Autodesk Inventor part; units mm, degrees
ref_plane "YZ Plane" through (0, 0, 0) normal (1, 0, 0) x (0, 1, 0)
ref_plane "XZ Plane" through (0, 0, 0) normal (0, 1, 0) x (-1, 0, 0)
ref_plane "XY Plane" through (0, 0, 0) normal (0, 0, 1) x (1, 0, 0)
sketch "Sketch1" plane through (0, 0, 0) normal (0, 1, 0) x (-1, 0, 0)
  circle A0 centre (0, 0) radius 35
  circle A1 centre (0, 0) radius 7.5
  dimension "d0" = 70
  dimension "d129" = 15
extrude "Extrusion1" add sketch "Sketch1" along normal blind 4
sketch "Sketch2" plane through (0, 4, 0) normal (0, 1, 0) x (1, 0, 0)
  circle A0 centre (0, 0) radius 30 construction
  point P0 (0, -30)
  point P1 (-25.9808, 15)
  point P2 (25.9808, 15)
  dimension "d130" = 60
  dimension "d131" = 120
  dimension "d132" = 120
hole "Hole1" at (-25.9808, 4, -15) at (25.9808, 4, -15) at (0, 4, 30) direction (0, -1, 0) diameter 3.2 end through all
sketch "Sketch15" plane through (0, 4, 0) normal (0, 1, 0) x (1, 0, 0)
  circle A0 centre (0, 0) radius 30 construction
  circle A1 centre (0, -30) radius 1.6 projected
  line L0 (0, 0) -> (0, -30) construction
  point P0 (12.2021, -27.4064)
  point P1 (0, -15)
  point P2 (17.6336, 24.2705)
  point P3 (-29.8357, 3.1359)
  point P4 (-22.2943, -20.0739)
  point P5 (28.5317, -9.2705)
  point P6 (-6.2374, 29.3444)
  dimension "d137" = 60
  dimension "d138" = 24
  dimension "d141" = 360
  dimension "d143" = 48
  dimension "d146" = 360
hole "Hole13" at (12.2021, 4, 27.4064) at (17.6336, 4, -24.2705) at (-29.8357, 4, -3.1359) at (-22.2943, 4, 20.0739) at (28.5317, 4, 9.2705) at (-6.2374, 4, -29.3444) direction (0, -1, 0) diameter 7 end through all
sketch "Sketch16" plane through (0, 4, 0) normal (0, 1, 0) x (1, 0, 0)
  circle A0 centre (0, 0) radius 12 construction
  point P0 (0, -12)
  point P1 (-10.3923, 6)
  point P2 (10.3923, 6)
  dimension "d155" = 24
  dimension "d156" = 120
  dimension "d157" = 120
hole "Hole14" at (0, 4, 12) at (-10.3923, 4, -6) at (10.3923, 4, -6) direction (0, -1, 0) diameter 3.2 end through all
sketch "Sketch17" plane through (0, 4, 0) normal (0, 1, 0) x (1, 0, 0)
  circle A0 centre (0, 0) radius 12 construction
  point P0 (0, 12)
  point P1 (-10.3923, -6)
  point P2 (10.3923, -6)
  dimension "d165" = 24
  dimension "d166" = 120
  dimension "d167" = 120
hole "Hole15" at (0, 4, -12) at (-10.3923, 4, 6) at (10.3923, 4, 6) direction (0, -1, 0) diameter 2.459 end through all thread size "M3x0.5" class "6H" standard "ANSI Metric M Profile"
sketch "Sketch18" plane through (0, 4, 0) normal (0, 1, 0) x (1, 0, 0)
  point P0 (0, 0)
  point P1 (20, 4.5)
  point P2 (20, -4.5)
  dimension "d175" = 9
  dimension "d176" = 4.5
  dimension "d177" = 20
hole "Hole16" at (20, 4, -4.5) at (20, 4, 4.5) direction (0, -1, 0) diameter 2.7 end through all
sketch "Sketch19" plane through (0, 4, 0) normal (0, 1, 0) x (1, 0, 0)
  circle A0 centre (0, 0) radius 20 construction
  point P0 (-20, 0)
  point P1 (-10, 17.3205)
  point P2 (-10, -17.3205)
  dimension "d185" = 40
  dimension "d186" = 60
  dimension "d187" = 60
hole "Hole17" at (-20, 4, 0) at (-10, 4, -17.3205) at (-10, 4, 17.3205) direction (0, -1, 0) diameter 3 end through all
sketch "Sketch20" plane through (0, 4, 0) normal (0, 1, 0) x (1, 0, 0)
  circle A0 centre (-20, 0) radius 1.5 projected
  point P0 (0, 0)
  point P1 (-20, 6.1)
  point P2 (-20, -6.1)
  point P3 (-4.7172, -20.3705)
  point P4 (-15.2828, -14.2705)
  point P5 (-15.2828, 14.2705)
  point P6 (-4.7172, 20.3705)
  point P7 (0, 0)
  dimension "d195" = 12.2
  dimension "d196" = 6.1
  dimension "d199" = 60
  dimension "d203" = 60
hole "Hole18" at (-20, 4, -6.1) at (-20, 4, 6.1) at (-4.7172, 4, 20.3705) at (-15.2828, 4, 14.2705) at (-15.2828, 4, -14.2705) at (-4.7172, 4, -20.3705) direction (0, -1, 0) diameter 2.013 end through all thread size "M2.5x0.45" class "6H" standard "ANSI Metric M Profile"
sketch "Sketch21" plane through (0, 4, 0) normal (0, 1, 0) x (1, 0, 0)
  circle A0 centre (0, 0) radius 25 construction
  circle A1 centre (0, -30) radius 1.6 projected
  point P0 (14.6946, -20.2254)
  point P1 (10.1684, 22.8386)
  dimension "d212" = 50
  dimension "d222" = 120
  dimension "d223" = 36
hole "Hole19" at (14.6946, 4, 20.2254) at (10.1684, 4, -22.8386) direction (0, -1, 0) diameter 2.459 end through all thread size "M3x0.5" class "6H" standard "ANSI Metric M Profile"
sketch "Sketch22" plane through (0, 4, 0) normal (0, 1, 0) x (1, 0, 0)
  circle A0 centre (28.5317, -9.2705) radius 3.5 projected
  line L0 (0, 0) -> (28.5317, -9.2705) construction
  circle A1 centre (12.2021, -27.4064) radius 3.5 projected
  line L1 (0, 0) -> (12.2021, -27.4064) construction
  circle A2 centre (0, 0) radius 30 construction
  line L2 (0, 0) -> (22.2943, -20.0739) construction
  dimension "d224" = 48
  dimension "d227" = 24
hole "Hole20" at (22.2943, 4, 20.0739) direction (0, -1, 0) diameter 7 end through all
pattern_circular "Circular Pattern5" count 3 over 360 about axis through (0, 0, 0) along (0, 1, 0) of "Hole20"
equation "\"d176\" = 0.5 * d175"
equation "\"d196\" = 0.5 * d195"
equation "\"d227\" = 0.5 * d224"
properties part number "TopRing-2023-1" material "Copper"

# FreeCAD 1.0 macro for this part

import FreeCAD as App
import Part
import Sketcher

doc = App.newDocument("Part")
body = doc.addObject("PartDesign::Body", "Body")

# Sketch on XZ plane
sketch1 = body.newObject("Sketcher::SketchObject", "Sketch")
sketch1.AttachmentSupport = (doc.getObject("XZ_Plane"), [""])
sketch1.MapMode = "FlatFace"
sketch1.addGeometry(Part.Circle(App.Vector(0, 0, 0), App.Vector(0, 0, 1), 35), False)
sketch1.addGeometry(Part.Circle(App.Vector(0, 0, 0), App.Vector(0, 0, 1), 8), False)
sketch1.addConstraint(Sketcher.Constraint("Coincident", 0, 3, -1, 1))
sketch1.addConstraint(Sketcher.Constraint("Coincident", 1, 3, -1, 1))
sketch1.addConstraint(Sketcher.Constraint("Diameter", 0, 70.0))
sketch1.addConstraint(Sketcher.Constraint("Diameter", 1, 15.0))
pad1 = body.newObject("PartDesign::Pad", "Pad")
pad1.Profile = sketch1
pad1.Length = 4
pad1.Reversed = True

# Sketch on XZ plane
sketch2 = body.newObject("Sketcher::SketchObject", "Sketch001")
sketch2.AttachmentSupport = (doc.getObject("XZ_Plane"), [""])
sketch2.MapMode = "FlatFace"
sketch2.AttachmentOffset = App.Placement(App.Vector(0, 0, -4), App.Rotation())
sketch2.addGeometry(Part.Circle(App.Vector(-26, -15, 0), App.Vector(0, 0, 1), 1.6), False)
sketch2.addGeometry(Part.Circle(App.Vector(26, -15, 0), App.Vector(0, 0, 1), 1.6), False)
sketch2.addGeometry(Part.Circle(App.Vector(0, 30, 0), App.Vector(0, 0, 1), 1.6), False)
sketch2.addConstraint(Sketcher.Constraint("Equal", 0, 1))
sketch2.addConstraint(Sketcher.Constraint("Equal", 1, 2))
sketch2.addConstraint(Sketcher.Constraint("Symmetric", 0, 3, 1, 3, -2))
sketch2.addConstraint(Sketcher.Constraint("PointOnObject", 2, 3, -2))
sketch2.addConstraint(Sketcher.Constraint("Diameter", 0, 3.2))
sketch2.addConstraint(Sketcher.Constraint("DistanceY", 0, 3, -1, 1, 15.0))
sketch2.addConstraint(Sketcher.Constraint("DistanceY", -1, 1, 2, 3, 30.0))
sketch2.addConstraint(Sketcher.Constraint("DistanceX", 0, 3, -1, 1, 25.9808))
doc.recompute()
hole = body.newObject("PartDesign::Hole", "Hole")
hole.Profile = sketch2
hole.ThreadType = "None"
hole.Diameter = 3.2
hole.DepthType = "ThroughAll"
hole.Reversed = True

# Sketch on XZ plane
sketch3 = body.newObject("Sketcher::SketchObject", "Sketch002")
sketch3.AttachmentSupport = (doc.getObject("XZ_Plane"), [""])
sketch3.MapMode = "FlatFace"
sketch3.AttachmentOffset = App.Placement(App.Vector(0, 0, -4), App.Rotation())
sketch3.addGeometry(Part.Circle(App.Vector(12.2, 27.4, 0), App.Vector(0, 0, 1), 3.5), False)
sketch3.addGeometry(Part.Circle(App.Vector(17.6, -24.3, 0), App.Vector(0, 0, 1), 3.5), False)
sketch3.addGeometry(Part.Circle(App.Vector(-29.8, -3.1, 0), App.Vector(0, 0, 1), 3.5), False)
sketch3.addGeometry(Part.Circle(App.Vector(-22.3, 20.1, 0), App.Vector(0, 0, 1), 3.5), False)
sketch3.addGeometry(Part.Circle(App.Vector(28.5, 9.3, 0), App.Vector(0, 0, 1), 3.5), False)
sketch3.addGeometry(Part.Circle(App.Vector(-6.2, -29.3, 0), App.Vector(0, 0, 1), 3.5), False)
sketch3.addConstraint(Sketcher.Constraint("Equal", 0, 1))
sketch3.addConstraint(Sketcher.Constraint("Equal", 1, 2))
sketch3.addConstraint(Sketcher.Constraint("Equal", 2, 3))
sketch3.addConstraint(Sketcher.Constraint("Equal", 3, 4))
sketch3.addConstraint(Sketcher.Constraint("Equal", 4, 5))
sketch3.addConstraint(Sketcher.Constraint("Diameter", 0, 7.0))
sketch3.addConstraint(Sketcher.Constraint("DistanceX", -1, 1, 0, 3, 12.202))
sketch3.addConstraint(Sketcher.Constraint("DistanceY", 2, 3, -1, 1, 3.136))
sketch3.addConstraint(Sketcher.Constraint("DistanceY", -1, 1, 3, 3, 20.074))
sketch3.addConstraint(Sketcher.Constraint("DistanceY", 1, 3, 0, 3, 51.677))
sketch3.addConstraint(Sketcher.Constraint("DistanceX", 3, 3, 1, 3, 39.928))
sketch3.addConstraint(Sketcher.Constraint("DistanceY", 4, 3, 0, 3, 18.136))
sketch3.addConstraint(Sketcher.Constraint("DistanceX", 1, 3, 4, 3, 10.898))
sketch3.addConstraint(Sketcher.Constraint("DistanceX", 5, 3, 1, 3, 23.871))
sketch3.addConstraint(Sketcher.Constraint("DistanceY", 5, 3, 1, 3, 5.074))
sketch3.addConstraint(Sketcher.Constraint("DistanceY", -1, 1, 0, 3, 27.4064))
sketch3.addConstraint(Sketcher.Constraint("DistanceX", -1, 1, 1, 3, 17.6336))
sketch3.addConstraint(Sketcher.Constraint("DistanceX", 2, 3, -1, 1, 29.8357))
doc.recompute()
hole2 = body.newObject("PartDesign::Hole", "Hole001")
hole2.Profile = sketch3
hole2.ThreadType = "None"
hole2.Diameter = 7
hole2.DepthType = "ThroughAll"
hole2.Reversed = True

# Sketch on XZ plane
sketch4 = body.newObject("Sketcher::SketchObject", "Sketch003")
sketch4.AttachmentSupport = (doc.getObject("XZ_Plane"), [""])
sketch4.MapMode = "FlatFace"
sketch4.AttachmentOffset = App.Placement(App.Vector(0, 0, -4), App.Rotation())
sketch4.addGeometry(Part.Circle(App.Vector(0, 12, 0), App.Vector(0, 0, 1), 1.6), False)
sketch4.addGeometry(Part.Circle(App.Vector(-10.4, -6, 0), App.Vector(0, 0, 1), 1.6), False)
sketch4.addGeometry(Part.Circle(App.Vector(10.4, -6, 0), App.Vector(0, 0, 1), 1.6), False)
sketch4.addConstraint(Sketcher.Constraint("Equal", 0, 1))
sketch4.addConstraint(Sketcher.Constraint("Equal", 1, 2))
sketch4.addConstraint(Sketcher.Constraint("Symmetric", 1, 3, 2, 3, -2))
sketch4.addConstraint(Sketcher.Constraint("PointOnObject", 0, 3, -2))
sketch4.addConstraint(Sketcher.Constraint("Diameter", 0, 3.2))
sketch4.addConstraint(Sketcher.Constraint("DistanceY", -1, 1, 0, 3, 12.0))
sketch4.addConstraint(Sketcher.Constraint("DistanceY", 1, 3, -1, 1, 6.0))
sketch4.addConstraint(Sketcher.Constraint("DistanceX", 1, 3, -1, 1, 10.3923))
doc.recompute()
hole3 = body.newObject("PartDesign::Hole", "Hole002")
hole3.Profile = sketch4
hole3.ThreadType = "None"
hole3.Diameter = 3.2
hole3.DepthType = "ThroughAll"
hole3.Reversed = True

# Sketch on XZ plane
sketch5 = body.newObject("Sketcher::SketchObject", "Sketch004")
sketch5.AttachmentSupport = (doc.getObject("XZ_Plane"), [""])
sketch5.MapMode = "FlatFace"
sketch5.AttachmentOffset = App.Placement(App.Vector(0, 0, -4), App.Rotation())
sketch5.addGeometry(Part.Circle(App.Vector(0, -12, 0), App.Vector(0, 0, 1), 1.2), False)
sketch5.addGeometry(Part.Circle(App.Vector(-10.4, 6, 0), App.Vector(0, 0, 1), 1.2), False)
sketch5.addGeometry(Part.Circle(App.Vector(10.4, 6, 0), App.Vector(0, 0, 1), 1.2), False)
sketch5.addConstraint(Sketcher.Constraint("Equal", 0, 1))
sketch5.addConstraint(Sketcher.Constraint("Equal", 1, 2))
sketch5.addConstraint(Sketcher.Constraint("Symmetric", 1, 3, 2, 3, -2))
sketch5.addConstraint(Sketcher.Constraint("PointOnObject", 0, 3, -2))
sketch5.addConstraint(Sketcher.Constraint("Diameter", 0, 2.459))
sketch5.addConstraint(Sketcher.Constraint("DistanceY", 0, 3, -1, 1, 12.0))
sketch5.addConstraint(Sketcher.Constraint("DistanceY", -1, 1, 1, 3, 6.0))
sketch5.addConstraint(Sketcher.Constraint("DistanceX", 1, 3, -1, 1, 10.3923))
doc.recompute()
hole4 = body.newObject("PartDesign::Hole", "Hole003")
hole4.Profile = sketch5
hole4.ThreadType = "None"
hole4.Diameter = 2.459
hole4.DepthType = "ThroughAll"
hole4.Reversed = True

# Sketch on XZ plane
sketch6 = body.newObject("Sketcher::SketchObject", "Sketch005")
sketch6.AttachmentSupport = (doc.getObject("XZ_Plane"), [""])
sketch6.MapMode = "FlatFace"
sketch6.AttachmentOffset = App.Placement(App.Vector(0, 0, -4), App.Rotation())
sketch6.addGeometry(Part.Circle(App.Vector(20, -4.5, 0), App.Vector(0, 0, 1), 1.4), False)
sketch6.addGeometry(Part.Circle(App.Vector(20, 4.5, 0), App.Vector(0, 0, 1), 1.4), False)
sketch6.addConstraint(Sketcher.Constraint("Equal", 0, 1))
sketch6.addConstraint(Sketcher.Constraint("Symmetric", 0, 3, 1, 3, -1))
sketch6.addConstraint(Sketcher.Constraint("Diameter", 0, 2.7))
sketch6.addConstraint(Sketcher.Constraint("DistanceX", -1, 1, 0, 3, 20.0))
sketch6.addConstraint(Sketcher.Constraint("DistanceY", 0, 3, 1, 3, 9.0))
doc.recompute()
hole5 = body.newObject("PartDesign::Hole", "Hole004")
hole5.Profile = sketch6
hole5.ThreadType = "None"
hole5.Diameter = 2.7
hole5.DepthType = "ThroughAll"
hole5.Reversed = True

# Sketch on XZ plane
sketch7 = body.newObject("Sketcher::SketchObject", "Sketch006")
sketch7.AttachmentSupport = (doc.getObject("XZ_Plane"), [""])
sketch7.MapMode = "FlatFace"
sketch7.AttachmentOffset = App.Placement(App.Vector(0, 0, -4), App.Rotation())
sketch7.addGeometry(Part.Circle(App.Vector(-20, 0, 0), App.Vector(0, 0, 1), 1.5), False)
sketch7.addGeometry(Part.Circle(App.Vector(-10, -17.3, 0), App.Vector(0, 0, 1), 1.5), False)
sketch7.addGeometry(Part.Circle(App.Vector(-10, 17.3, 0), App.Vector(0, 0, 1), 1.5), False)
sketch7.addConstraint(Sketcher.Constraint("Equal", 0, 1))
sketch7.addConstraint(Sketcher.Constraint("Equal", 1, 2))
sketch7.addConstraint(Sketcher.Constraint("Symmetric", 1, 3, 2, 3, -1))
sketch7.addConstraint(Sketcher.Constraint("PointOnObject", 0, 3, -1))
sketch7.addConstraint(Sketcher.Constraint("Diameter", 0, 3.0))
sketch7.addConstraint(Sketcher.Constraint("DistanceX", 0, 3, -1, 1, 20.0))
sketch7.addConstraint(Sketcher.Constraint("DistanceX", 1, 3, -1, 1, 10.0))
sketch7.addConstraint(Sketcher.Constraint("DistanceY", 1, 3, 2, 3, 34.641))
doc.recompute()
hole6 = body.newObject("PartDesign::Hole", "Hole005")
hole6.Profile = sketch7
hole6.ThreadType = "None"
hole6.Diameter = 3
hole6.DepthType = "ThroughAll"
hole6.Reversed = True

# Sketch on XZ plane
sketch8 = body.newObject("Sketcher::SketchObject", "Sketch007")
sketch8.AttachmentSupport = (doc.getObject("XZ_Plane"), [""])
sketch8.MapMode = "FlatFace"
sketch8.AttachmentOffset = App.Placement(App.Vector(0, 0, -4), App.Rotation())
sketch8.addGeometry(Part.Circle(App.Vector(-20, -6.1, 0), App.Vector(0, 0, 1), 1), False)
sketch8.addGeometry(Part.Circle(App.Vector(-20, 6.1, 0), App.Vector(0, 0, 1), 1), False)
sketch8.addGeometry(Part.Circle(App.Vector(-4.7, 20.4, 0), App.Vector(0, 0, 1), 1), False)
sketch8.addGeometry(Part.Circle(App.Vector(-15.3, 14.3, 0), App.Vector(0, 0, 1), 1), False)
sketch8.addGeometry(Part.Circle(App.Vector(-15.3, -14.3, 0), App.Vector(0, 0, 1), 1), False)
sketch8.addGeometry(Part.Circle(App.Vector(-4.7, -20.4, 0), App.Vector(0, 0, 1), 1), False)
sketch8.addConstraint(Sketcher.Constraint("Equal", 0, 1))
sketch8.addConstraint(Sketcher.Constraint("Equal", 1, 2))
sketch8.addConstraint(Sketcher.Constraint("Equal", 2, 3))
sketch8.addConstraint(Sketcher.Constraint("Equal", 3, 4))
sketch8.addConstraint(Sketcher.Constraint("Equal", 4, 5))
sketch8.addConstraint(Sketcher.Constraint("Symmetric", 0, 3, 1, 3, -1))
sketch8.addConstraint(Sketcher.Constraint("Symmetric", 3, 3, 4, 3, -1))
sketch8.addConstraint(Sketcher.Constraint("Symmetric", 2, 3, 5, 3, -1))
sketch8.addConstraint(Sketcher.Constraint("Diameter", 0, 2.013))
sketch8.addConstraint(Sketcher.Constraint("DistanceX", 0, 3, -1, 1, 20.0))
sketch8.addConstraint(Sketcher.Constraint("DistanceY", 0, 3, -1, 1, 6.1))
sketch8.addConstraint(Sketcher.Constraint("DistanceY", 3, 3, 2, 3, 6.1))
sketch8.addConstraint(Sketcher.Constraint("DistanceY", 4, 3, 3, 3, 28.541))
sketch8.addConstraint(Sketcher.Constraint("DistanceX", 2, 3, -1, 1, 4.7172))
sketch8.addConstraint(Sketcher.Constraint("DistanceX", 3, 3, -1, 1, 15.2828))
doc.recompute()
hole7 = body.newObject("PartDesign::Hole", "Hole006")
hole7.Profile = sketch8
hole7.ThreadType = "None"
hole7.Diameter = 2.013
hole7.DepthType = "ThroughAll"
hole7.Reversed = True

# Sketch on XZ plane
sketch9 = body.newObject("Sketcher::SketchObject", "Sketch008")
sketch9.AttachmentSupport = (doc.getObject("XZ_Plane"), [""])
sketch9.MapMode = "FlatFace"
sketch9.AttachmentOffset = App.Placement(App.Vector(0, 0, -4), App.Rotation())
sketch9.addGeometry(Part.Circle(App.Vector(14.7, 20.2, 0), App.Vector(0, 0, 1), 1.2), False)
sketch9.addGeometry(Part.Circle(App.Vector(10.2, -22.8, 0), App.Vector(0, 0, 1), 1.2), False)
sketch9.addConstraint(Sketcher.Constraint("Equal", 0, 1))
sketch9.addConstraint(Sketcher.Constraint("Diameter", 0, 2.459))
sketch9.addConstraint(Sketcher.Constraint("DistanceY", 1, 3, 0, 3, 43.064))
sketch9.addConstraint(Sketcher.Constraint("DistanceX", -1, 1, 0, 3, 14.6946))
sketch9.addConstraint(Sketcher.Constraint("DistanceY", -1, 1, 0, 3, 20.2254))
sketch9.addConstraint(Sketcher.Constraint("DistanceX", -1, 1, 1, 3, 10.1684))
doc.recompute()
hole8 = body.newObject("PartDesign::Hole", "Hole007")
hole8.Profile = sketch9
hole8.ThreadType = "None"
hole8.Diameter = 2.459
hole8.DepthType = "ThroughAll"
hole8.Reversed = True

# Sketch on XZ plane
sketch10 = body.newObject("Sketcher::SketchObject", "Sketch009")
sketch10.AttachmentSupport = (doc.getObject("XZ_Plane"), [""])
sketch10.MapMode = "FlatFace"
sketch10.AttachmentOffset = App.Placement(App.Vector(0, 0, -4), App.Rotation())
sketch10.addGeometry(Part.Circle(App.Vector(22.3, 20.1, 0), App.Vector(0, 0, 1), 3.5), False)
sketch10.addConstraint(Sketcher.Constraint("Diameter", 0, 7.0))
sketch10.addConstraint(Sketcher.Constraint("DistanceY", -1, 1, 0, 3, 20.074))
sketch10.addConstraint(Sketcher.Constraint("DistanceX", -1, 1, 0, 3, 22.2943))
doc.recompute()
hole9 = body.newObject("PartDesign::Hole", "Hole008")
hole9.Profile = sketch10
hole9.ThreadType = "None"
hole9.Diameter = 7
hole9.DepthType = "ThroughAll"
hole9.Reversed = True
doc.recompute()

polarpattern = body.newObject("PartDesign::PolarPattern", "PolarPattern")
polarpattern.Originals = [hole9]
polarpattern.Axis = (doc.getObject("Y_Axis"), [""])
polarpattern.Angle = 360
polarpattern.Occurrences = 3
body.Tip = polarpattern

doc.recompute()
